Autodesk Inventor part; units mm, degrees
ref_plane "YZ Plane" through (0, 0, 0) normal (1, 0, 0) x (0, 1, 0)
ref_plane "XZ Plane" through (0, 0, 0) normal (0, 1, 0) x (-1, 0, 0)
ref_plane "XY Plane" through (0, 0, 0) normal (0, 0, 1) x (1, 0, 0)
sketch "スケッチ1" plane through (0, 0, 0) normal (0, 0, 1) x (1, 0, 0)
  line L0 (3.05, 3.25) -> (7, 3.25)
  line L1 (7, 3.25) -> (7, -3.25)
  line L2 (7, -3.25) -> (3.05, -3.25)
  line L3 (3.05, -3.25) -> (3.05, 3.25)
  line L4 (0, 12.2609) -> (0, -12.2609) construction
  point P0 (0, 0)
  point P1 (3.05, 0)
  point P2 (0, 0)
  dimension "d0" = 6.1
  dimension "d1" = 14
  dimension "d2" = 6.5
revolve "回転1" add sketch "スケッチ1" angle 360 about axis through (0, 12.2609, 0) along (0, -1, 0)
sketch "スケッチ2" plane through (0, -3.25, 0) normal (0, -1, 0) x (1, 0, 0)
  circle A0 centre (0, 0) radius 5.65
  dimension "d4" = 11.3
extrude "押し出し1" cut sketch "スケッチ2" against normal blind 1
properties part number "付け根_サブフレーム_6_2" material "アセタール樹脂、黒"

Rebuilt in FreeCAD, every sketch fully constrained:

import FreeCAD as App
import Part
import Sketcher
from FreeCAD import Vector
Q = App.Units.Quantity


def add_polygon(sketch, points):
    """Adds a closed chain of lines whose ends are joined by coincident constraints."""
    first, n = sketch.GeometryCount, len(points)
    for a, b in zip(points, points[1:] + points[:1]):
        sketch.addGeometry(Part.LineSegment(App.Vector(*a, 0), App.Vector(*b, 0)), False)
    for i in range(n):
        sketch.addConstraint(Sketcher.Constraint("Coincident", first + i, 2, first + (i + 1) % n, 1))

doc = App.newDocument("Part")
body = doc.addObject("PartDesign::Body", "Body")

sketch1 = body.newObject("Sketcher::SketchObject", "Sketch")
sketch1.AttachmentSupport = (doc.getObject("XY_Plane"), [""])
sketch1.MapMode = "FlatFace"
add_polygon(sketch1, [(7, 3.25), (3.05, 3.25), (3.05, -3.25), (7, -3.25)])
sketch1.addConstraint([
    Sketcher.Constraint("Horizontal", 0),
    Sketcher.Constraint("Vertical", 1),
    Sketcher.Constraint("Horizontal", 2),
    Sketcher.Constraint("Vertical", 3),
    Sketcher.Constraint("DistanceY", 1, 2, 1, 1, Q("6.5 mm")),
    Sketcher.Constraint("DistanceX", -1, 1, 2, 2, Q("7 mm")),
    Sketcher.Constraint("DistanceX", 0, 2, 0, 1, Q("3.95 mm")),
    Sketcher.Constraint("DistanceY", -1, 1, 0, 2, Q("3.25 mm")),
])
revolution = body.newObject("PartDesign::Revolution", "Revolution")
revolution.Profile = sketch1
revolution.ReferenceAxis = (sketch1, ["V_Axis"])
revolution.Angle = 360

sketch2 = body.newObject("Sketcher::SketchObject", "Sketch001")
sketch2.AttachmentSupport = (doc.getObject("XZ_Plane"), [""])
sketch2.MapMode = "FlatFace"
sketch2.AttachmentOffset = App.Placement(Vector(0, 0, 3.25), App.Rotation())
sketch2.addGeometry(Part.Circle(Vector(0, 0, 0), Vector(0, 0, 1), 5.65), False)
sketch2.addConstraint([
    Sketcher.Constraint("Coincident", 0, 3, -1, 1),
    Sketcher.Constraint("Diameter", 0, Q("11.3 mm")),
])
pocket1 = body.newObject("PartDesign::Pocket", "Pocket")
pocket1.Profile = sketch2
pocket1.Length = 1

doc.recompute()
